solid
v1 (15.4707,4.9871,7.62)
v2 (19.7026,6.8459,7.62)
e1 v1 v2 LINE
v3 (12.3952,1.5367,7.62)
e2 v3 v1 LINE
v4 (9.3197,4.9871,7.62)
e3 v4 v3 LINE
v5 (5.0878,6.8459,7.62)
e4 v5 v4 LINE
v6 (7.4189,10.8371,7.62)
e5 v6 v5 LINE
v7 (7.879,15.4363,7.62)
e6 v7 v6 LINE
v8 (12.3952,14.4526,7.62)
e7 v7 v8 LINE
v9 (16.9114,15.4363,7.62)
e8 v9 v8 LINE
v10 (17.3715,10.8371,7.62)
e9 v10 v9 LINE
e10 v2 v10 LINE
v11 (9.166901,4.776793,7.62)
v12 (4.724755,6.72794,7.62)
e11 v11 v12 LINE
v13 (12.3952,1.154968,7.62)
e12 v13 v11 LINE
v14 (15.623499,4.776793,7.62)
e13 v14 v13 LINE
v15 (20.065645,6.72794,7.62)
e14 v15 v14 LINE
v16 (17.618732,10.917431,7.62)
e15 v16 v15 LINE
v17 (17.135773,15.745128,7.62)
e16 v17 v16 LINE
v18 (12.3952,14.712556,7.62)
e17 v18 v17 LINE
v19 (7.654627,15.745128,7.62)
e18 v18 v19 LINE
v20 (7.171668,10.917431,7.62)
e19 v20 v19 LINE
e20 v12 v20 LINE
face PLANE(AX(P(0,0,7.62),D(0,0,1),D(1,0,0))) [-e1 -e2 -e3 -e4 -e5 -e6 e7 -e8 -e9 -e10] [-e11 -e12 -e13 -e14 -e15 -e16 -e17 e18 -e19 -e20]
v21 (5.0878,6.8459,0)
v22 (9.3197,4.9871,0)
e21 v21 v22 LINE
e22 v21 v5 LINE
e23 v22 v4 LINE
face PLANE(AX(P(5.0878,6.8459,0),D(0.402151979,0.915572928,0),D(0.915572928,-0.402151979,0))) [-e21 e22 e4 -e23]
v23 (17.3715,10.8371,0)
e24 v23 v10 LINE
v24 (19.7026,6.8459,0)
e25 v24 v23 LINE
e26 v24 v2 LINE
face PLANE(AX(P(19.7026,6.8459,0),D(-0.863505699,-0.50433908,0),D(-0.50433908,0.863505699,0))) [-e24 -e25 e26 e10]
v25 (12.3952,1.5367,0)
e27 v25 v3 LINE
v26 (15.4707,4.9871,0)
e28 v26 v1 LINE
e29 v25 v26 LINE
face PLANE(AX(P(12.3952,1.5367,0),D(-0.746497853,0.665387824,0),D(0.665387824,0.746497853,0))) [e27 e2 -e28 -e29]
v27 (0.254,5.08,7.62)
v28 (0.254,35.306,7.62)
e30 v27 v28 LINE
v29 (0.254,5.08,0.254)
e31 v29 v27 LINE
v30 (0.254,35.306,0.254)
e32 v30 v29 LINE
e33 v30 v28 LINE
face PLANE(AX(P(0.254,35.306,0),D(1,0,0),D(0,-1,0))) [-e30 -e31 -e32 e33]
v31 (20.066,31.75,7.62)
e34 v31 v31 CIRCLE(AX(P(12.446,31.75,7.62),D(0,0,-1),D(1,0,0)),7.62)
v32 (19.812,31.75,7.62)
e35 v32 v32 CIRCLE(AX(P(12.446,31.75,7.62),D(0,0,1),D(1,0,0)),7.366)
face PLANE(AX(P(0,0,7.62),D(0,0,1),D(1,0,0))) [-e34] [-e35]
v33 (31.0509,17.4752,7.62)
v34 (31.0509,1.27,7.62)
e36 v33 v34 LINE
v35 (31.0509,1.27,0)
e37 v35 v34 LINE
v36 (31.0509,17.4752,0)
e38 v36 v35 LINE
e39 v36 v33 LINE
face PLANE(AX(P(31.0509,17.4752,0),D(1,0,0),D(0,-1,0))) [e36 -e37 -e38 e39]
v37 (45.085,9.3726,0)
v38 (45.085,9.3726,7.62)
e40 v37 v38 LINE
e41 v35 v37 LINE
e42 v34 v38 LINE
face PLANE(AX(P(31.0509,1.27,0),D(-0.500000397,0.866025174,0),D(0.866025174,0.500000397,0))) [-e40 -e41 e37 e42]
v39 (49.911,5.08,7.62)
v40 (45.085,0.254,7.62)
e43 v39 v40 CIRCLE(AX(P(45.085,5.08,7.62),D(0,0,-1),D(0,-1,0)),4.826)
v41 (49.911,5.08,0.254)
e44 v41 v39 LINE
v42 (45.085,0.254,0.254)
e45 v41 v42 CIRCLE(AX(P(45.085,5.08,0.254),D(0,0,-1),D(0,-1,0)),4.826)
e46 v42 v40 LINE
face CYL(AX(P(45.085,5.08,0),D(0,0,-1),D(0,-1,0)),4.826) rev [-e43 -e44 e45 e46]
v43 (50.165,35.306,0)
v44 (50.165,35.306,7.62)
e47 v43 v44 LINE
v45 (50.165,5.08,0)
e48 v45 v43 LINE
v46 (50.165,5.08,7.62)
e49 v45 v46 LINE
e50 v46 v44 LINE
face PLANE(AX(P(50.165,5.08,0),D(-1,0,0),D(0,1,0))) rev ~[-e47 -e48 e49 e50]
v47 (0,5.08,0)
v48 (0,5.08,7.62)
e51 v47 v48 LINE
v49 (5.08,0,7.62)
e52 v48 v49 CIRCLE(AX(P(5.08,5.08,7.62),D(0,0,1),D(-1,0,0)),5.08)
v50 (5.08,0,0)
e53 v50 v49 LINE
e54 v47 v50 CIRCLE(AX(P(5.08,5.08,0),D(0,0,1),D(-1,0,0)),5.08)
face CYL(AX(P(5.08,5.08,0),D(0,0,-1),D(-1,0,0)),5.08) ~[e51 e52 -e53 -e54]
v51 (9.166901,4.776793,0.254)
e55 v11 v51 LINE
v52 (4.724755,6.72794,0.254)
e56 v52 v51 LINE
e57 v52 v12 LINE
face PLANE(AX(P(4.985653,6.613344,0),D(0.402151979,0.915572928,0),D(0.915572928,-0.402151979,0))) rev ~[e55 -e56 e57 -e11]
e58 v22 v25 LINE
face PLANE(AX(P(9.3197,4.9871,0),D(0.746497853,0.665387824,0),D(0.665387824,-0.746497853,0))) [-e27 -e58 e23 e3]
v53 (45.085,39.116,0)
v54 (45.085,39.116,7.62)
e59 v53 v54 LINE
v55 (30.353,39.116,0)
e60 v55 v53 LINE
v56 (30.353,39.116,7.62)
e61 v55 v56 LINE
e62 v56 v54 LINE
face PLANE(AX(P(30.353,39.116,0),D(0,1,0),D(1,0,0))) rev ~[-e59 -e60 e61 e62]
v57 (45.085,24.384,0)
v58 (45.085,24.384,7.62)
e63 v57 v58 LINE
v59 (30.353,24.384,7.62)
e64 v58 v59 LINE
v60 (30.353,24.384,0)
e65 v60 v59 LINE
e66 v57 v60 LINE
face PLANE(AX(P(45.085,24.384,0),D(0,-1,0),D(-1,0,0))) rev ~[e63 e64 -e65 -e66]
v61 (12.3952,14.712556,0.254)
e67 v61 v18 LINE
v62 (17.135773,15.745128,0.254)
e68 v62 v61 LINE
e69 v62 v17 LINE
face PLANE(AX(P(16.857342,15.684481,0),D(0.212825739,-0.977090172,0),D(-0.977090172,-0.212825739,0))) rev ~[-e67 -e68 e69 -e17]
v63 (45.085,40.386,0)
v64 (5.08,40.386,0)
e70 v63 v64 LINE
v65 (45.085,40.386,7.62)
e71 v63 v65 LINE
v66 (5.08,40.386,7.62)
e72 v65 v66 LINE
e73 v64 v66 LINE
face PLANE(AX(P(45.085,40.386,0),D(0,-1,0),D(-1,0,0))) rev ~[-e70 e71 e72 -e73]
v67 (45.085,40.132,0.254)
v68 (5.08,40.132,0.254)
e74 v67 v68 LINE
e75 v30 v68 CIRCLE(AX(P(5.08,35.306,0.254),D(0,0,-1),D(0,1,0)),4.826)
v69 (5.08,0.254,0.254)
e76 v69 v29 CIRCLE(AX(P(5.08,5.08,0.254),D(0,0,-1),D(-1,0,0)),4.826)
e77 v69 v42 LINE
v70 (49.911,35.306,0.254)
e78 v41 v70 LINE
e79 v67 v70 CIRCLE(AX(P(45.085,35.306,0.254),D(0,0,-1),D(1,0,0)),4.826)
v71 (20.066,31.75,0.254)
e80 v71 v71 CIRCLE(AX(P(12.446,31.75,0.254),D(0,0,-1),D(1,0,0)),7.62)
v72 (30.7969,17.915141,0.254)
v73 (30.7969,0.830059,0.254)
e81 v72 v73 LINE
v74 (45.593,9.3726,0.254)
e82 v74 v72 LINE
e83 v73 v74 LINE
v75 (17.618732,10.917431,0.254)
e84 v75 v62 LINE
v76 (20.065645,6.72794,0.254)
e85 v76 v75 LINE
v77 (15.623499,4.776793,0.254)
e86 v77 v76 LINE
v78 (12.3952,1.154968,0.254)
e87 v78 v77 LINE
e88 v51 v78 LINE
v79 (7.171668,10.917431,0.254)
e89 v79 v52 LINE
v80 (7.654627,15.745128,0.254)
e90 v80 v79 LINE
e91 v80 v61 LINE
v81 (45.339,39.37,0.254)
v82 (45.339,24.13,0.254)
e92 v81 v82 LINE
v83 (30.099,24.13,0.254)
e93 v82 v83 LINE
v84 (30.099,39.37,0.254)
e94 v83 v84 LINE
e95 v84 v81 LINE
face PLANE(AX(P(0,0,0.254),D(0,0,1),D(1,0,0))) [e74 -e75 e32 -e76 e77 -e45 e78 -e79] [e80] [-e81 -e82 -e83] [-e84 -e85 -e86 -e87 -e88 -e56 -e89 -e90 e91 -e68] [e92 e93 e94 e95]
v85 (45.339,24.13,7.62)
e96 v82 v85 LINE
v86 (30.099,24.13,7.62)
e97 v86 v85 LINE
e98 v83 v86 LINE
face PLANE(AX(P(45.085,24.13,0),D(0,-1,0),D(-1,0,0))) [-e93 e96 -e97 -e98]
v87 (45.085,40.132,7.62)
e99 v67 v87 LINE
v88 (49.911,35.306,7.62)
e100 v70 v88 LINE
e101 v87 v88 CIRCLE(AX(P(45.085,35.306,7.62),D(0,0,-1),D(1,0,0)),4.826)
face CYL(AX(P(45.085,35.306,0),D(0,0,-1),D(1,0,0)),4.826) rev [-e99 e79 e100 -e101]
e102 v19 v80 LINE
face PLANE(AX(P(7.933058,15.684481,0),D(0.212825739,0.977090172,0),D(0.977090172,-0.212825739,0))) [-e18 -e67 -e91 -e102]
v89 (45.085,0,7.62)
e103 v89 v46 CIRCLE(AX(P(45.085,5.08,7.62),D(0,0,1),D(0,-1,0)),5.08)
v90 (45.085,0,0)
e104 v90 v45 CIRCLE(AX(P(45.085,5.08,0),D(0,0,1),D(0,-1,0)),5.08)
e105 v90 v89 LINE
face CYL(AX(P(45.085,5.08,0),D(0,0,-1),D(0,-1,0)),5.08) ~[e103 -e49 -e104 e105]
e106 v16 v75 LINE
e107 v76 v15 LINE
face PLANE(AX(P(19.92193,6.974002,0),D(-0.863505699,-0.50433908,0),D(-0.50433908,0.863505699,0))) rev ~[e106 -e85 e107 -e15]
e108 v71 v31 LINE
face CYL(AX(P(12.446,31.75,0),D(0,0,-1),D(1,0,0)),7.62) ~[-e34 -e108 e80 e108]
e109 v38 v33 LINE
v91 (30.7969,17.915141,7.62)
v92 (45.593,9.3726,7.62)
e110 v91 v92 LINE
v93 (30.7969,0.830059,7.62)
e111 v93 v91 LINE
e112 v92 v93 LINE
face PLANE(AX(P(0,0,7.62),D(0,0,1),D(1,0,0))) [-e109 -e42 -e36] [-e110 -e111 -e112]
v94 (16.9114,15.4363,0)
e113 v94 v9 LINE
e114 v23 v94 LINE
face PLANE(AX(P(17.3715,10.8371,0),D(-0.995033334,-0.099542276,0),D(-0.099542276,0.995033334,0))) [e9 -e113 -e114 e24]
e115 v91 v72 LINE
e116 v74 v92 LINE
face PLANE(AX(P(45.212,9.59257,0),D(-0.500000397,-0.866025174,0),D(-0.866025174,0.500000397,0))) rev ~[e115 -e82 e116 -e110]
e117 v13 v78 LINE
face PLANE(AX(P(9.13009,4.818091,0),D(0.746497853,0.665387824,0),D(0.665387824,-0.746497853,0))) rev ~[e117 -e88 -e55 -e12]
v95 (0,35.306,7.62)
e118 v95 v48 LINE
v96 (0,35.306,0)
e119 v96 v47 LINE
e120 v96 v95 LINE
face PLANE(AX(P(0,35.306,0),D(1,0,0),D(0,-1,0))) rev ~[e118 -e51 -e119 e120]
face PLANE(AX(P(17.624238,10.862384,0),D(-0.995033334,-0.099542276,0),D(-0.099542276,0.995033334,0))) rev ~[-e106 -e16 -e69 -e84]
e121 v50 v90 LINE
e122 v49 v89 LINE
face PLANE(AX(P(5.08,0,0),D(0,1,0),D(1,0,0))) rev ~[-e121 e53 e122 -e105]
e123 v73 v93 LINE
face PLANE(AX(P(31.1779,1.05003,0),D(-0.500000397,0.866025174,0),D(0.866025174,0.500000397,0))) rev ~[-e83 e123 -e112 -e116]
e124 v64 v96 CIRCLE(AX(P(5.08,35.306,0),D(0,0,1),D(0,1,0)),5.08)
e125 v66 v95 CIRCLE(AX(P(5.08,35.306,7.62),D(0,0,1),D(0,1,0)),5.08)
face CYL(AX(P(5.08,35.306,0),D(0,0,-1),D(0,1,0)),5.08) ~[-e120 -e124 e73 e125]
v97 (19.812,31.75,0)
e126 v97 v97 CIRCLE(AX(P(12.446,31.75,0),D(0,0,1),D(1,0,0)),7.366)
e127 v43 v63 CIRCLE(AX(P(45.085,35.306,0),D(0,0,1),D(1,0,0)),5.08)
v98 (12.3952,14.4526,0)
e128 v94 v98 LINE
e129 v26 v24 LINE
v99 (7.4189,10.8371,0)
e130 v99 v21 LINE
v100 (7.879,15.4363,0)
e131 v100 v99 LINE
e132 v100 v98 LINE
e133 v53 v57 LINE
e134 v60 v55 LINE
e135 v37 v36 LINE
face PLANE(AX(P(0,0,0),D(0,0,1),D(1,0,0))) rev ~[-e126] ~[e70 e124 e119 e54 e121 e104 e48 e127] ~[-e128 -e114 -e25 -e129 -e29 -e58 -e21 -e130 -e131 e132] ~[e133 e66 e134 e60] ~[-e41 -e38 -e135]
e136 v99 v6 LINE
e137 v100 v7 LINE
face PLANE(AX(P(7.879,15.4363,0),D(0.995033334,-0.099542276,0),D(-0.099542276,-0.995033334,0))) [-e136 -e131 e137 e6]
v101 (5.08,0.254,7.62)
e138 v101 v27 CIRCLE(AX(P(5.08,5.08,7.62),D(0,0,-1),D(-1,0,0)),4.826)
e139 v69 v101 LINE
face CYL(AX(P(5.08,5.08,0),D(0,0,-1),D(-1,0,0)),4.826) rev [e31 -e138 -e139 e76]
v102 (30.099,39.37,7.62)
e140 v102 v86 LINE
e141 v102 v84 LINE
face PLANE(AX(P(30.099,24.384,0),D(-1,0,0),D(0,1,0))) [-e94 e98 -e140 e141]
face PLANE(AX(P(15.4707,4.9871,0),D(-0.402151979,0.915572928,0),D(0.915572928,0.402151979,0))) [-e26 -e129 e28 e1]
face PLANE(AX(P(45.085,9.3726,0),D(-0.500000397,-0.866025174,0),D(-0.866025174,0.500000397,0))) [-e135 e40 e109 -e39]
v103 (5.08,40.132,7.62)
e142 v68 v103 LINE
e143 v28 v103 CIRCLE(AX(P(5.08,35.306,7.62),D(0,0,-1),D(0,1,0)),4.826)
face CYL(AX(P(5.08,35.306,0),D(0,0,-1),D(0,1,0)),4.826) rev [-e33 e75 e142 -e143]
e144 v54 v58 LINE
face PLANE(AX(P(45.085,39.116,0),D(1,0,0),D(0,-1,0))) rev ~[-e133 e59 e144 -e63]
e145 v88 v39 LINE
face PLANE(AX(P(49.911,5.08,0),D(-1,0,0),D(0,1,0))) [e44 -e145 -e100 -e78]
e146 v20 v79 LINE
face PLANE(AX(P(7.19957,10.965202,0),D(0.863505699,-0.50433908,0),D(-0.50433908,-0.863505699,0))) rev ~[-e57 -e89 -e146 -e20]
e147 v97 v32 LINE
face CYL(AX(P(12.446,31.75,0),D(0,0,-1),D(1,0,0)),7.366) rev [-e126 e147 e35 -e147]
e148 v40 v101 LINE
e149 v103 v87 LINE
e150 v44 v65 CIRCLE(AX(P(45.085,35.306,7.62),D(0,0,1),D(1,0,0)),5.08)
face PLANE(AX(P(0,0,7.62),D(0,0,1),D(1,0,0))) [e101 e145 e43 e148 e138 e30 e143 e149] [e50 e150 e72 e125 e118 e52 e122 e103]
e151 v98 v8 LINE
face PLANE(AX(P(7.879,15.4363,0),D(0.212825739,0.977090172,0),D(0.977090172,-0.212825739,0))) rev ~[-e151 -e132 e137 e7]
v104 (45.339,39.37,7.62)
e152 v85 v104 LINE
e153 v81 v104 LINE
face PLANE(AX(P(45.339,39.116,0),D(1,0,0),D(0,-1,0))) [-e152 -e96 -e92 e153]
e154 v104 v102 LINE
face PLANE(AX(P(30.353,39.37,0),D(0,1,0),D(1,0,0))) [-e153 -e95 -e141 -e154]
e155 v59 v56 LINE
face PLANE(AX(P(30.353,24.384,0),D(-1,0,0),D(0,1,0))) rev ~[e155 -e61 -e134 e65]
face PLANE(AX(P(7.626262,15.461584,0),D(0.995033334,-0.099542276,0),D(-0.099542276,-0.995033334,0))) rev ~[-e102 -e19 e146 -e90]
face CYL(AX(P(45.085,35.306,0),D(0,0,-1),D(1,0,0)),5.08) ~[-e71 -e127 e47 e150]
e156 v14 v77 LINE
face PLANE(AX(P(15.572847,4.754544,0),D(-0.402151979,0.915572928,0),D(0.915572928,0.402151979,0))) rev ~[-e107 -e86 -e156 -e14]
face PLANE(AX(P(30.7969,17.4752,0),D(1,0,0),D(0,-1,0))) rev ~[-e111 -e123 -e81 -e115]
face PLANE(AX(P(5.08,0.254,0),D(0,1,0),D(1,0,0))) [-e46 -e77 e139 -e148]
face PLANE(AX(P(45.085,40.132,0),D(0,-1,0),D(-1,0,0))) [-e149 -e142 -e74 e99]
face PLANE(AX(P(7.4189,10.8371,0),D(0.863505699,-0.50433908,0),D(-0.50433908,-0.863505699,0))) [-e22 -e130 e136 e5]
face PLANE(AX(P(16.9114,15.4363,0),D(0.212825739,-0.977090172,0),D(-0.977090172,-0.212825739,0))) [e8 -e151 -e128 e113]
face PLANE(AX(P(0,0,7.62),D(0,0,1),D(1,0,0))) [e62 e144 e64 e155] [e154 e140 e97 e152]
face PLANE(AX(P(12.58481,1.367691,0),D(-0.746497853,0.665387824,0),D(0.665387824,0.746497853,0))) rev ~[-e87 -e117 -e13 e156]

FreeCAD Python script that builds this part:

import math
import FreeCAD as App
import Part
import Sketcher
from FreeCAD import Vector
Q = App.Units.Quantity


def faces_at(feature, points):
    """Names of the faces that lie closest to the given points."""
    faces = feature.Shape.Faces
    near = lambda p: min(range(len(faces)), key=lambda i: faces[i].distToShape(Part.Vertex(*p))[0])
    return sorted({f"Face{near(p) + 1}" for p in points})

doc = App.newDocument("Part")
body = doc.addObject("PartDesign::Body", "Body")

# Sketch on XY plane
sketch1 = doc.addObject("Sketcher::SketchObject", "Sketch")
body.addObject(sketch1)
sketch1.AttachmentSupport = (doc.XY_Plane, [""])
sketch1.MapMode = "FlatFace"
sketch1.addGeometry([
    Part.ArcOfCircle(Part.Circle(Vector(5.08, 5.08, 0), Vector(0, 0, 1), 5.08), math.radians(180), math.radians(270)),  # 0
    Part.LineSegment(Vector(5.08, 0, 0), Vector(45.085, 0, 0)),  # 1
    Part.ArcOfCircle(Part.Circle(Vector(45.085, 5.08, 0), Vector(0, 0, 1), 5.08), math.radians(-90), math.radians(0)),  # 2
    Part.LineSegment(Vector(50.165, 5.08, 0), Vector(50.165, 35.306, 0)),  # 3
    Part.ArcOfCircle(Part.Circle(Vector(45.085, 35.306, 0), Vector(0, 0, 1), 5.08), math.radians(0), math.radians(90)),  # 4
    Part.LineSegment(Vector(45.085, 40.386, 0), Vector(5.08, 40.386, 0)),  # 5
    Part.ArcOfCircle(Part.Circle(Vector(5.08, 35.306, 0), Vector(0, 0, 1), 5.08), math.radians(90), math.radians(180)),  # 6
    Part.LineSegment(Vector(0, 35.306, 0), Vector(0, 5.08, 0)),  # 7
    Part.LineSegment(Vector(15.4707, 4.9871, 0), Vector(12.3952, 1.5367, 0)),  # 8
    Part.LineSegment(Vector(12.3952, 1.5367, 0), Vector(9.3197, 4.9871, 0)),  # 9
    Part.LineSegment(Vector(9.3197, 4.9871, 0), Vector(5.0878, 6.8459, 0)),  # 10
    Part.LineSegment(Vector(5.0878, 6.8459, 0), Vector(7.4189, 10.8371, 0)),  # 11
    Part.LineSegment(Vector(7.4189, 10.8371, 0), Vector(7.879, 15.4363, 0)),  # 12
    Part.LineSegment(Vector(7.879, 15.4363, 0), Vector(12.3952, 14.4526, 0)),  # 13
    Part.LineSegment(Vector(12.3952, 14.4526, 0), Vector(16.9114, 15.4363, 0)),  # 14
    Part.LineSegment(Vector(16.9114, 15.4363, 0), Vector(17.3715, 10.8371, 0)),  # 15
    Part.LineSegment(Vector(17.3715, 10.8371, 0), Vector(19.7026, 6.8459, 0)),  # 16
    Part.LineSegment(Vector(19.7026, 6.8459, 0), Vector(15.4707, 4.9871, 0)),  # 17
    Part.LineSegment(Vector(31.0509, 1.27, 0), Vector(31.0509, 17.4752, 0)),  # 18
    Part.LineSegment(Vector(31.0509, 17.4752, 0), Vector(45.085, 9.3726, 0)),  # 19
    Part.LineSegment(Vector(45.085, 9.3726, 0), Vector(31.0509, 1.27, 0)),  # 20
    Part.Circle(Vector(12.446, 31.75, 0), Vector(0, 0, 1), 7.366),  # 21
    Part.LineSegment(Vector(30.353, 24.384, 0), Vector(30.353, 39.116, 0)),  # 22
    Part.LineSegment(Vector(30.353, 39.116, 0), Vector(45.085, 39.116, 0)),  # 23
    Part.LineSegment(Vector(45.085, 39.116, 0), Vector(45.085, 24.384, 0)),  # 24
    Part.LineSegment(Vector(45.085, 24.384, 0), Vector(30.353, 24.384, 0)),  # 25
], False)
sketch1.addConstraint([
    Sketcher.Constraint("Coincident", 0, 2, 1, 1),
    Sketcher.Constraint("Coincident", 1, 2, 2, 1),
    Sketcher.Constraint("Coincident", 2, 2, 3, 1),
    Sketcher.Constraint("Coincident", 3, 2, 4, 1),
    Sketcher.Constraint("Coincident", 4, 2, 5, 1),
    Sketcher.Constraint("Coincident", 5, 2, 6, 1),
    Sketcher.Constraint("Coincident", 6, 2, 7, 1),
    Sketcher.Constraint("Coincident", 7, 2, 0, 1),
    Sketcher.Constraint("Coincident", 8, 2, 9, 1),
    Sketcher.Constraint("Coincident", 9, 2, 10, 1),
    Sketcher.Constraint("Coincident", 10, 2, 11, 1),
    Sketcher.Constraint("Coincident", 11, 2, 12, 1),
    Sketcher.Constraint("Coincident", 12, 2, 13, 1),
    Sketcher.Constraint("Coincident", 13, 2, 14, 1),
    Sketcher.Constraint("Coincident", 14, 2, 15, 1),
    Sketcher.Constraint("Coincident", 15, 2, 16, 1),
    Sketcher.Constraint("Coincident", 16, 2, 17, 1),
    Sketcher.Constraint("Coincident", 17, 2, 8, 1),
    Sketcher.Constraint("Coincident", 18, 2, 19, 1),
    Sketcher.Constraint("Coincident", 19, 2, 20, 1),
    Sketcher.Constraint("Coincident", 20, 2, 18, 1),
    Sketcher.Constraint("Coincident", 22, 2, 23, 1),
    Sketcher.Constraint("Coincident", 23, 2, 24, 1),
    Sketcher.Constraint("Coincident", 24, 2, 25, 1),
    Sketcher.Constraint("Coincident", 25, 2, 22, 1),
    Sketcher.Constraint("Horizontal", 1),
    Sketcher.Constraint("Vertical", 3),
    Sketcher.Constraint("Horizontal", 5),
    Sketcher.Constraint("Vertical", 7),
    Sketcher.Constraint("Vertical", 18),
    Sketcher.Constraint("Vertical", 22),
    Sketcher.Constraint("Horizontal", 23),
    Sketcher.Constraint("Vertical", 24),
    Sketcher.Constraint("Horizontal", 25),
    Sketcher.Constraint("PointOnObject", 0, 2, -1),
    Sketcher.Constraint("PointOnObject", 6, 2, -2),
    Sketcher.Constraint("Radius", 0, Q("0.2 in")),
    Sketcher.Constraint("Radius", 2, Q("0.2 in")),
    Sketcher.Constraint("Radius", 4, Q("0.2 in")),
    Sketcher.Constraint("Radius", 6, Q("0.2 in")),
    Sketcher.Constraint("Diameter", 21, Q("0.58 in")),
    Sketcher.Constraint("DistanceX", 23, 1, 23, 2, Q("0.58 in")),
    Sketcher.Constraint("DistanceY", 22, 1, 22, 2, Q("0.58 in")),
    Sketcher.Constraint("DistanceX", -1, 1, 0, 2, Q("0.2 in")),
    Sketcher.Constraint("DistanceY", -1, 1, 2, 2, Q("0.2 in")),
    Sketcher.Constraint("DistanceX", -1, 1, 5, 2, Q("0.2 in")),
    Sketcher.Constraint("DistanceY", -1, 1, 7, 2, Q("0.2 in")),
    Sketcher.Constraint("DistanceX", 1, 2, 2, 2, Q("0.2 in")),
    Sketcher.Constraint("DistanceX", 4, 2, 3, 2, Q("0.2 in")),
    Sketcher.Constraint("DistanceY", 3, 2, 4, 2, Q("0.2 in")),
    Sketcher.Constraint("DistanceY", 6, 2, 5, 2, Q("0.2 in")),
    Sketcher.Constraint("DistanceX", 19, 2, 2, 2, Q("0.2 in")),
    Sketcher.Constraint("DistanceX", 23, 2, 3, 2, Q("0.2 in")),
    Sketcher.Constraint("DistanceY", 18, 1, 18, 2, Q("0.638 in")),
    Sketcher.Constraint("DistanceX", -1, 1, 21, 3, Q("0.49 in")),
    Sketcher.Constraint("DistanceY", -1, 1, 4, 2, Q("1.59 in")),
    Sketcher.Constraint("DistanceY", -1, 1, 20, 2, Q("0.05 in")),
    Sketcher.Constraint("DistanceY", 21, 3, 4, 2, Q("0.34 in")),
    Sketcher.Constraint("DistanceY", 22, 2, 4, 2, Q("0.05 in")),
    Sketcher.Constraint("Distance", 19, Q("0.638 in")),
    Sketcher.Constraint("Distance", 20, Q("0.638 in")),
    Sketcher.Constraint("DistanceX", -1, 1, 2, 2, Q("1.975 in")),
    Sketcher.Constraint("DistanceX", -1, 1, 8, 2, Q("0.488 in")),
    Sketcher.Constraint("DistanceX", -1, 1, 13, 2, Q("0.488 in")),
    Sketcher.Constraint("DistanceY", -1, 1, 13, 2, Q("0.569 in")),
    Sketcher.Constraint("DistanceX", 9, 2, 15, 2, Q("0.317 in")),
    Sketcher.Constraint("DistanceX", 11, 2, 17, 2, Q("0.317 in")),
    Sketcher.Constraint("DistanceY", -1, 1, 8, 2, Q("0.0605 in")),
    Sketcher.Constraint("DistanceX", -1, 1, 10, 2, Q("0.2003 in")),
    Sketcher.Constraint("DistanceX", -1, 1, 12, 2, Q("0.3102 in")),
    Sketcher.Constraint("DistanceX", -1, 1, 14, 2, Q("0.6658 in")),
    Sketcher.Constraint("DistanceX", -1, 1, 16, 2, Q("0.7757 in")),
    Sketcher.Constraint("DistanceX", 10, 2, 9, 2, Q("0.1666 in")),
    Sketcher.Constraint("DistanceY", 10, 2, 12, 2, Q("0.3382 in")),
    Sketcher.Constraint("DistanceY", 10, 2, 14, 2, Q("0.3382 in")),
    Sketcher.Constraint("DistanceY", 16, 2, 14, 2, Q("0.3382 in")),
    Sketcher.Constraint("DistanceX", 17, 2, 16, 2, Q("0.1666 in")),
    Sketcher.Constraint("Distance", 8, Q("4.622 mm")),
    Sketcher.Constraint("Distance", 9, Q("4.622 mm")),
    Sketcher.Constraint("Distance", 10, Q("4.6221 mm")),
    Sketcher.Constraint("Distance", 11, Q("4.622 mm")),
    Sketcher.Constraint("Distance", 15, Q("4.6222 mm")),
])
pad1 = doc.addObject("PartDesign::Pad", "Pad")
body.addObject(pad1)
pad1.Profile = sketch1
pad1.Length = Q("0.3 in")
doc.recompute()

thickness = doc.addObject("PartDesign::Thickness", "Thickness")
body.addObject(thickness)
thickness.Base = (pad1, faces_at(pad1, [(40.407, 17.077, 7.62)]))
thickness.Value = Q("0.01 in")
thickness.Reversed = True
thickness.Join = "Intersection"

doc.recompute()
